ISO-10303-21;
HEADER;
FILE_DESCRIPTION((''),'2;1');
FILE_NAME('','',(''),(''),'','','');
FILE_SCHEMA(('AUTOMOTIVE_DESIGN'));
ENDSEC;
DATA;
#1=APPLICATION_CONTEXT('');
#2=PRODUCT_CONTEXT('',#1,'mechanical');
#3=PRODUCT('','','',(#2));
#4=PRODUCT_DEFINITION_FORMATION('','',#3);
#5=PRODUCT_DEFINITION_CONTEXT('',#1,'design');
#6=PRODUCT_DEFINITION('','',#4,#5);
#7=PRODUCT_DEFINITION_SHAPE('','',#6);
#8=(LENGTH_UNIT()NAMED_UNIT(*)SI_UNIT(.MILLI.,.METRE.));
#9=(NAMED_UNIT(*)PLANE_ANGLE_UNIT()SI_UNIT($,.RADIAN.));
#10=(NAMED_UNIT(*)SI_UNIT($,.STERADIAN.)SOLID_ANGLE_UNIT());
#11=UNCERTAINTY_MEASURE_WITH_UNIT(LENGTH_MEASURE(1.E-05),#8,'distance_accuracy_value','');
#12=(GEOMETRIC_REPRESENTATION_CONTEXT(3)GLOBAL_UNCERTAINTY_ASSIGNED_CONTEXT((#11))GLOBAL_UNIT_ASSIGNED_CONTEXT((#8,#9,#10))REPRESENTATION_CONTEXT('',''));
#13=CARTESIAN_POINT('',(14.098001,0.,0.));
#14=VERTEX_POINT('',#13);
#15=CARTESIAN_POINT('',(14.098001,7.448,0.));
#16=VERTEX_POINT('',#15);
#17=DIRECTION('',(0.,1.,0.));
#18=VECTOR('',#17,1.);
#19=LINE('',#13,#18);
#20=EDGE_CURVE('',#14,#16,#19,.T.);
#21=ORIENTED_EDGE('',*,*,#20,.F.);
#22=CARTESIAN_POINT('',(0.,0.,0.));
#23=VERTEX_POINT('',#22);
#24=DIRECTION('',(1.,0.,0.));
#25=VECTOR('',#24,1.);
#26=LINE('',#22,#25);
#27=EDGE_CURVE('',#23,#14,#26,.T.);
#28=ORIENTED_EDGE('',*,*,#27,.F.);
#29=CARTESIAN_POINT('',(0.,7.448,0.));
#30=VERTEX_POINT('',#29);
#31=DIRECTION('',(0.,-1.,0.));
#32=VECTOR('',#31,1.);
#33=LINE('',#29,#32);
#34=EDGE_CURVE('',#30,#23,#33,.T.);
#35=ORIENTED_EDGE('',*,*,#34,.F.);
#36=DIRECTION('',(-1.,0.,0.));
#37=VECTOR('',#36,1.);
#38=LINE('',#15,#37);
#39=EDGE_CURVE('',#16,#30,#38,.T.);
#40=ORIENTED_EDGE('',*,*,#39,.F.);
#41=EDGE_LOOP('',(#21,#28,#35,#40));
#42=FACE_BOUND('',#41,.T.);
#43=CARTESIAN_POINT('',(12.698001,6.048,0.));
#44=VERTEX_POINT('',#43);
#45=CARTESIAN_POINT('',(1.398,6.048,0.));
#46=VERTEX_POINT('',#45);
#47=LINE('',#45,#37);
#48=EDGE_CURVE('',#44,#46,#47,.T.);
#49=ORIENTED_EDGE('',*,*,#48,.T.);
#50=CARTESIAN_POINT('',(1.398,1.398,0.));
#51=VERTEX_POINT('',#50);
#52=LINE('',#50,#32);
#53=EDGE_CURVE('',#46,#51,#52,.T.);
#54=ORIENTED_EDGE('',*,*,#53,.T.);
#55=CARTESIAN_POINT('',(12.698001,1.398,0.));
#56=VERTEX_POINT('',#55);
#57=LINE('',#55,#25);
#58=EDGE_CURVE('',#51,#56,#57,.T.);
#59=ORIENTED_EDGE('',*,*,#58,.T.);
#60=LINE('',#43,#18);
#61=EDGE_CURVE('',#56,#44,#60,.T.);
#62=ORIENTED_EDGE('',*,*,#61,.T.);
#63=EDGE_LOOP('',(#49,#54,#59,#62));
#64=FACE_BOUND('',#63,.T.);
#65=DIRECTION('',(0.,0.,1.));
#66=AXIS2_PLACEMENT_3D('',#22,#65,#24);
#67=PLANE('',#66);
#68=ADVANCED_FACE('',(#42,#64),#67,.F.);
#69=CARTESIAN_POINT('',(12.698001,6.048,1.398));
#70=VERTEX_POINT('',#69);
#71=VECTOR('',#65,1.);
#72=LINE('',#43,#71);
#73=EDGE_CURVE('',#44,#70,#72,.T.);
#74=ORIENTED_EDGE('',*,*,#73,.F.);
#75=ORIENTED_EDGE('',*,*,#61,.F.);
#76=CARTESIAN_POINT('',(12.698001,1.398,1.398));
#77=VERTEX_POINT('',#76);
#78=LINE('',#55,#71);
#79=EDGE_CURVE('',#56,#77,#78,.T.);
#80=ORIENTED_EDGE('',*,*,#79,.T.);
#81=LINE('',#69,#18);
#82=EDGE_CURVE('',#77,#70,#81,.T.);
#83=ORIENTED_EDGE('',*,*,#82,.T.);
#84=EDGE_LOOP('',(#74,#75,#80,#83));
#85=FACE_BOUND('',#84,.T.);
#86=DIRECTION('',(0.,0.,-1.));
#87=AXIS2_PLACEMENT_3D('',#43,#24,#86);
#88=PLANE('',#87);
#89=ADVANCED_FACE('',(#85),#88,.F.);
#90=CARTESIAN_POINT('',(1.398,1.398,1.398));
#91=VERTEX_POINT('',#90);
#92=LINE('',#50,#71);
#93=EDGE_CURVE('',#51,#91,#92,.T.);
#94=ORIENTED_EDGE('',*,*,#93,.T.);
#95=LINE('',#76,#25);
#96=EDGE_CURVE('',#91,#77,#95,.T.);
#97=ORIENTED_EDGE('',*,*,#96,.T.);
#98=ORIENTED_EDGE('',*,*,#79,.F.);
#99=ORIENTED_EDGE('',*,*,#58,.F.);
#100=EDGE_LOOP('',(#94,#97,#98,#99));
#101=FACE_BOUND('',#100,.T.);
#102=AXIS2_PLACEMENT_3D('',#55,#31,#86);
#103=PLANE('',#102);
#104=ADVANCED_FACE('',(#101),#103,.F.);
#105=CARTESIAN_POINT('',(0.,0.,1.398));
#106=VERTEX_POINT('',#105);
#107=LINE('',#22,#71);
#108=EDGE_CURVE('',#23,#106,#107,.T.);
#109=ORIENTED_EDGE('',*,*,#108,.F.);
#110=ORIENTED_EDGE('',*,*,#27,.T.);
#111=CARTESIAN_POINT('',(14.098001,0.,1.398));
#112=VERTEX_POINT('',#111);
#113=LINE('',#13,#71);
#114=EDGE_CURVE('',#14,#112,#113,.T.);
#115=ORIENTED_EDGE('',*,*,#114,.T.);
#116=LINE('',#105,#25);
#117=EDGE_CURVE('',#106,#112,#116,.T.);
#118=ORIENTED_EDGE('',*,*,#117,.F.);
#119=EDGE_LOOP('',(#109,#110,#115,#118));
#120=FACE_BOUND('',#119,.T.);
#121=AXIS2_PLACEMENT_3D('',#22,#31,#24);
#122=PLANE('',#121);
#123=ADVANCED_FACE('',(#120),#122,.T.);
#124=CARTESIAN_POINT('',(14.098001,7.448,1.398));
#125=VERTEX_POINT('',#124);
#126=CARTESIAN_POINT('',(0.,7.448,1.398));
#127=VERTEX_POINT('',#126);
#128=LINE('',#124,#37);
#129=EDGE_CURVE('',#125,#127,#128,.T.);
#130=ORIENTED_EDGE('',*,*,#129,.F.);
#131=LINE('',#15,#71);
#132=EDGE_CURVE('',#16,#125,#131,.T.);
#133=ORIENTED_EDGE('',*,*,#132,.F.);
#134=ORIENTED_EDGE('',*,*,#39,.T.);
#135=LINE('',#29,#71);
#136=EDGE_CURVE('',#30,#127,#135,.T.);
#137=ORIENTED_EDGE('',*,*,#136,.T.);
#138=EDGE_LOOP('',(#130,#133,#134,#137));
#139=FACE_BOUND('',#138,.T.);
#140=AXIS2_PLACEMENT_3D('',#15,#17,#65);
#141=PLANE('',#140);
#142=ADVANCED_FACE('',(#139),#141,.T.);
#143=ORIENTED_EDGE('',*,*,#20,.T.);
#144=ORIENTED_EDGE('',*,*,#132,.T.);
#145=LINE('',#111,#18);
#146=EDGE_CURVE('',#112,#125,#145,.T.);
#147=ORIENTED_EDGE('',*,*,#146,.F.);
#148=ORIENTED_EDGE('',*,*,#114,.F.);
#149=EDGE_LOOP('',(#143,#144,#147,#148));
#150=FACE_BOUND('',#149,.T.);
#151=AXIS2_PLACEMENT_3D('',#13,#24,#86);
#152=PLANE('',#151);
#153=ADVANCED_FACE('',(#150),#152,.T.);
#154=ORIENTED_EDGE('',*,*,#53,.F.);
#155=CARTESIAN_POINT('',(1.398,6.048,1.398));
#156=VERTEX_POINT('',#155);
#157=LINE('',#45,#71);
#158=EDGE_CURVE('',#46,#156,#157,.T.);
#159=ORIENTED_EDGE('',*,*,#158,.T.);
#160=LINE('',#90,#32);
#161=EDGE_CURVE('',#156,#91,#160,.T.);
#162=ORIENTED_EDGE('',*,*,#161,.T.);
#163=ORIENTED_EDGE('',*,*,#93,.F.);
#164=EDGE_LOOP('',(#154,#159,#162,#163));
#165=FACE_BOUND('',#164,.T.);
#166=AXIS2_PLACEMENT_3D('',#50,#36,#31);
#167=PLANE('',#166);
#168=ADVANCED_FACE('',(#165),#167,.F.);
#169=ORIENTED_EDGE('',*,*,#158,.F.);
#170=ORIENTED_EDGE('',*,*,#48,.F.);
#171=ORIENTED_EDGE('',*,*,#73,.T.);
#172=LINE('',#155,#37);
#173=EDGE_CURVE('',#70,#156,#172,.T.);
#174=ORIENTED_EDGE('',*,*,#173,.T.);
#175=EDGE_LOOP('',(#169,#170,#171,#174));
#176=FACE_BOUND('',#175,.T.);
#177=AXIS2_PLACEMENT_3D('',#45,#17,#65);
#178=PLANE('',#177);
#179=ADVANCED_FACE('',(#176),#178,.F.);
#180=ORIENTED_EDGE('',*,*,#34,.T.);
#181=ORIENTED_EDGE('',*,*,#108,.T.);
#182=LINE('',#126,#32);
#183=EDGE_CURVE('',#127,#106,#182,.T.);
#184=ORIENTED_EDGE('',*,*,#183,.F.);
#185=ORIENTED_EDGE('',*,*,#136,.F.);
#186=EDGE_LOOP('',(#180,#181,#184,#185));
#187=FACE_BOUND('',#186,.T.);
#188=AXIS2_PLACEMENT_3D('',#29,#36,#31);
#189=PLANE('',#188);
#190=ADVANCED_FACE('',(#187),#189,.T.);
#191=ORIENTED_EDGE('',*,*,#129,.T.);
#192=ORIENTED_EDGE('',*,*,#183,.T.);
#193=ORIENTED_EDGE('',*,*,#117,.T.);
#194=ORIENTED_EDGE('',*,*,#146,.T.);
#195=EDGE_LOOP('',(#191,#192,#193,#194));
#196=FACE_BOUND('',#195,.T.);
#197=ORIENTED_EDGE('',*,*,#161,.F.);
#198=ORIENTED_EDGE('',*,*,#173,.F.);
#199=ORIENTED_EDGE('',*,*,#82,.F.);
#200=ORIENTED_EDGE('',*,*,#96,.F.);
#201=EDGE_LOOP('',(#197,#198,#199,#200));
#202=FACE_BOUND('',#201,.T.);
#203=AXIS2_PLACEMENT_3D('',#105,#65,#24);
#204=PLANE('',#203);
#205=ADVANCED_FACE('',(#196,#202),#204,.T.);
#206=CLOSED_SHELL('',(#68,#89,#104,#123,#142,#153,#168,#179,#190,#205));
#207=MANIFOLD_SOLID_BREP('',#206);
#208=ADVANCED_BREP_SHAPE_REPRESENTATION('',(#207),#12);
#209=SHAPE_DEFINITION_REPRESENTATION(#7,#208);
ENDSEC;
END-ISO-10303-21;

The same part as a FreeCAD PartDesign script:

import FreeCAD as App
import Part
import Sketcher

doc = App.newDocument("Part")
body = doc.addObject("PartDesign::Body", "Body")

sketch1 = doc.addObject("Sketcher::SketchObject", "Sketch")
body.addObject(sketch1)
sketch1.AttachmentSupport = (doc.XY_Plane, [""])
sketch1.MapMode = "FlatFace"
sketch1.AttachmentOffset = App.Placement(App.Vector(0, 0, 1.398), App.Rotation())
sketch1.addGeometry([
    Part.LineSegment(App.Vector(0, 7.4, 0), App.Vector(0, 0, 0)),
    Part.LineSegment(App.Vector(0, 0, 0), App.Vector(14.1, 0, 0)),
    Part.LineSegment(App.Vector(14.1, 0, 0), App.Vector(14.1, 7.4, 0)),
    Part.LineSegment(App.Vector(14.1, 7.4, 0), App.Vector(0, 7.4, 0)),
    Part.LineSegment(App.Vector(12.7, 1.4, 0), App.Vector(1.4, 1.4, 0)),
    Part.LineSegment(App.Vector(1.4, 1.4, 0), App.Vector(1.4, 6, 0)),
    Part.LineSegment(App.Vector(1.4, 6, 0), App.Vector(12.7, 6, 0)),
    Part.LineSegment(App.Vector(12.7, 6, 0), App.Vector(12.7, 1.4, 0)),
], False)
sketch1.addConstraint([
    Sketcher.Constraint("Coincident", 0, 2, 1, 1),
    Sketcher.Constraint("Coincident", 1, 2, 2, 1),
    Sketcher.Constraint("Coincident", 2, 2, 3, 1),
    Sketcher.Constraint("Coincident", 3, 2, 0, 1),
    Sketcher.Constraint("Coincident", 4, 2, 5, 1),
    Sketcher.Constraint("Coincident", 5, 2, 6, 1),
    Sketcher.Constraint("Coincident", 6, 2, 7, 1),
    Sketcher.Constraint("Coincident", 7, 2, 4, 1),
    Sketcher.Constraint("Vertical", 0),
    Sketcher.Constraint("Horizontal", 1),
    Sketcher.Constraint("Vertical", 2),
    Sketcher.Constraint("Horizontal", 3),
    Sketcher.Constraint("Horizontal", 4),
    Sketcher.Constraint("Vertical", 5),
    Sketcher.Constraint("Horizontal", 6),
    Sketcher.Constraint("Vertical", 7),
    Sketcher.Constraint("Coincident", 0, 2, -1, 1),
    Sketcher.Constraint("DistanceX", 4, 2, 4, 1, 11.300001),
    Sketcher.Constraint("DistanceY", 5, 1, 5, 2, 4.65),
    Sketcher.Constraint("DistanceX", 4, 2, 1, 2, 12.7),
    Sketcher.Constraint("DistanceY", 5, 2, 3, 2, 1.4),
    Sketcher.Constraint("DistanceX", 1, 1, 1, 2, 14.098001),
    Sketcher.Constraint("DistanceY", 0, 2, 0, 1, 7.448),
])
pad1 = doc.addObject("PartDesign::Pad", "Pad")
body.addObject(pad1)
pad1.Profile = sketch1
pad1.Length = 1.398
pad1.Reversed = True

doc.recompute()
